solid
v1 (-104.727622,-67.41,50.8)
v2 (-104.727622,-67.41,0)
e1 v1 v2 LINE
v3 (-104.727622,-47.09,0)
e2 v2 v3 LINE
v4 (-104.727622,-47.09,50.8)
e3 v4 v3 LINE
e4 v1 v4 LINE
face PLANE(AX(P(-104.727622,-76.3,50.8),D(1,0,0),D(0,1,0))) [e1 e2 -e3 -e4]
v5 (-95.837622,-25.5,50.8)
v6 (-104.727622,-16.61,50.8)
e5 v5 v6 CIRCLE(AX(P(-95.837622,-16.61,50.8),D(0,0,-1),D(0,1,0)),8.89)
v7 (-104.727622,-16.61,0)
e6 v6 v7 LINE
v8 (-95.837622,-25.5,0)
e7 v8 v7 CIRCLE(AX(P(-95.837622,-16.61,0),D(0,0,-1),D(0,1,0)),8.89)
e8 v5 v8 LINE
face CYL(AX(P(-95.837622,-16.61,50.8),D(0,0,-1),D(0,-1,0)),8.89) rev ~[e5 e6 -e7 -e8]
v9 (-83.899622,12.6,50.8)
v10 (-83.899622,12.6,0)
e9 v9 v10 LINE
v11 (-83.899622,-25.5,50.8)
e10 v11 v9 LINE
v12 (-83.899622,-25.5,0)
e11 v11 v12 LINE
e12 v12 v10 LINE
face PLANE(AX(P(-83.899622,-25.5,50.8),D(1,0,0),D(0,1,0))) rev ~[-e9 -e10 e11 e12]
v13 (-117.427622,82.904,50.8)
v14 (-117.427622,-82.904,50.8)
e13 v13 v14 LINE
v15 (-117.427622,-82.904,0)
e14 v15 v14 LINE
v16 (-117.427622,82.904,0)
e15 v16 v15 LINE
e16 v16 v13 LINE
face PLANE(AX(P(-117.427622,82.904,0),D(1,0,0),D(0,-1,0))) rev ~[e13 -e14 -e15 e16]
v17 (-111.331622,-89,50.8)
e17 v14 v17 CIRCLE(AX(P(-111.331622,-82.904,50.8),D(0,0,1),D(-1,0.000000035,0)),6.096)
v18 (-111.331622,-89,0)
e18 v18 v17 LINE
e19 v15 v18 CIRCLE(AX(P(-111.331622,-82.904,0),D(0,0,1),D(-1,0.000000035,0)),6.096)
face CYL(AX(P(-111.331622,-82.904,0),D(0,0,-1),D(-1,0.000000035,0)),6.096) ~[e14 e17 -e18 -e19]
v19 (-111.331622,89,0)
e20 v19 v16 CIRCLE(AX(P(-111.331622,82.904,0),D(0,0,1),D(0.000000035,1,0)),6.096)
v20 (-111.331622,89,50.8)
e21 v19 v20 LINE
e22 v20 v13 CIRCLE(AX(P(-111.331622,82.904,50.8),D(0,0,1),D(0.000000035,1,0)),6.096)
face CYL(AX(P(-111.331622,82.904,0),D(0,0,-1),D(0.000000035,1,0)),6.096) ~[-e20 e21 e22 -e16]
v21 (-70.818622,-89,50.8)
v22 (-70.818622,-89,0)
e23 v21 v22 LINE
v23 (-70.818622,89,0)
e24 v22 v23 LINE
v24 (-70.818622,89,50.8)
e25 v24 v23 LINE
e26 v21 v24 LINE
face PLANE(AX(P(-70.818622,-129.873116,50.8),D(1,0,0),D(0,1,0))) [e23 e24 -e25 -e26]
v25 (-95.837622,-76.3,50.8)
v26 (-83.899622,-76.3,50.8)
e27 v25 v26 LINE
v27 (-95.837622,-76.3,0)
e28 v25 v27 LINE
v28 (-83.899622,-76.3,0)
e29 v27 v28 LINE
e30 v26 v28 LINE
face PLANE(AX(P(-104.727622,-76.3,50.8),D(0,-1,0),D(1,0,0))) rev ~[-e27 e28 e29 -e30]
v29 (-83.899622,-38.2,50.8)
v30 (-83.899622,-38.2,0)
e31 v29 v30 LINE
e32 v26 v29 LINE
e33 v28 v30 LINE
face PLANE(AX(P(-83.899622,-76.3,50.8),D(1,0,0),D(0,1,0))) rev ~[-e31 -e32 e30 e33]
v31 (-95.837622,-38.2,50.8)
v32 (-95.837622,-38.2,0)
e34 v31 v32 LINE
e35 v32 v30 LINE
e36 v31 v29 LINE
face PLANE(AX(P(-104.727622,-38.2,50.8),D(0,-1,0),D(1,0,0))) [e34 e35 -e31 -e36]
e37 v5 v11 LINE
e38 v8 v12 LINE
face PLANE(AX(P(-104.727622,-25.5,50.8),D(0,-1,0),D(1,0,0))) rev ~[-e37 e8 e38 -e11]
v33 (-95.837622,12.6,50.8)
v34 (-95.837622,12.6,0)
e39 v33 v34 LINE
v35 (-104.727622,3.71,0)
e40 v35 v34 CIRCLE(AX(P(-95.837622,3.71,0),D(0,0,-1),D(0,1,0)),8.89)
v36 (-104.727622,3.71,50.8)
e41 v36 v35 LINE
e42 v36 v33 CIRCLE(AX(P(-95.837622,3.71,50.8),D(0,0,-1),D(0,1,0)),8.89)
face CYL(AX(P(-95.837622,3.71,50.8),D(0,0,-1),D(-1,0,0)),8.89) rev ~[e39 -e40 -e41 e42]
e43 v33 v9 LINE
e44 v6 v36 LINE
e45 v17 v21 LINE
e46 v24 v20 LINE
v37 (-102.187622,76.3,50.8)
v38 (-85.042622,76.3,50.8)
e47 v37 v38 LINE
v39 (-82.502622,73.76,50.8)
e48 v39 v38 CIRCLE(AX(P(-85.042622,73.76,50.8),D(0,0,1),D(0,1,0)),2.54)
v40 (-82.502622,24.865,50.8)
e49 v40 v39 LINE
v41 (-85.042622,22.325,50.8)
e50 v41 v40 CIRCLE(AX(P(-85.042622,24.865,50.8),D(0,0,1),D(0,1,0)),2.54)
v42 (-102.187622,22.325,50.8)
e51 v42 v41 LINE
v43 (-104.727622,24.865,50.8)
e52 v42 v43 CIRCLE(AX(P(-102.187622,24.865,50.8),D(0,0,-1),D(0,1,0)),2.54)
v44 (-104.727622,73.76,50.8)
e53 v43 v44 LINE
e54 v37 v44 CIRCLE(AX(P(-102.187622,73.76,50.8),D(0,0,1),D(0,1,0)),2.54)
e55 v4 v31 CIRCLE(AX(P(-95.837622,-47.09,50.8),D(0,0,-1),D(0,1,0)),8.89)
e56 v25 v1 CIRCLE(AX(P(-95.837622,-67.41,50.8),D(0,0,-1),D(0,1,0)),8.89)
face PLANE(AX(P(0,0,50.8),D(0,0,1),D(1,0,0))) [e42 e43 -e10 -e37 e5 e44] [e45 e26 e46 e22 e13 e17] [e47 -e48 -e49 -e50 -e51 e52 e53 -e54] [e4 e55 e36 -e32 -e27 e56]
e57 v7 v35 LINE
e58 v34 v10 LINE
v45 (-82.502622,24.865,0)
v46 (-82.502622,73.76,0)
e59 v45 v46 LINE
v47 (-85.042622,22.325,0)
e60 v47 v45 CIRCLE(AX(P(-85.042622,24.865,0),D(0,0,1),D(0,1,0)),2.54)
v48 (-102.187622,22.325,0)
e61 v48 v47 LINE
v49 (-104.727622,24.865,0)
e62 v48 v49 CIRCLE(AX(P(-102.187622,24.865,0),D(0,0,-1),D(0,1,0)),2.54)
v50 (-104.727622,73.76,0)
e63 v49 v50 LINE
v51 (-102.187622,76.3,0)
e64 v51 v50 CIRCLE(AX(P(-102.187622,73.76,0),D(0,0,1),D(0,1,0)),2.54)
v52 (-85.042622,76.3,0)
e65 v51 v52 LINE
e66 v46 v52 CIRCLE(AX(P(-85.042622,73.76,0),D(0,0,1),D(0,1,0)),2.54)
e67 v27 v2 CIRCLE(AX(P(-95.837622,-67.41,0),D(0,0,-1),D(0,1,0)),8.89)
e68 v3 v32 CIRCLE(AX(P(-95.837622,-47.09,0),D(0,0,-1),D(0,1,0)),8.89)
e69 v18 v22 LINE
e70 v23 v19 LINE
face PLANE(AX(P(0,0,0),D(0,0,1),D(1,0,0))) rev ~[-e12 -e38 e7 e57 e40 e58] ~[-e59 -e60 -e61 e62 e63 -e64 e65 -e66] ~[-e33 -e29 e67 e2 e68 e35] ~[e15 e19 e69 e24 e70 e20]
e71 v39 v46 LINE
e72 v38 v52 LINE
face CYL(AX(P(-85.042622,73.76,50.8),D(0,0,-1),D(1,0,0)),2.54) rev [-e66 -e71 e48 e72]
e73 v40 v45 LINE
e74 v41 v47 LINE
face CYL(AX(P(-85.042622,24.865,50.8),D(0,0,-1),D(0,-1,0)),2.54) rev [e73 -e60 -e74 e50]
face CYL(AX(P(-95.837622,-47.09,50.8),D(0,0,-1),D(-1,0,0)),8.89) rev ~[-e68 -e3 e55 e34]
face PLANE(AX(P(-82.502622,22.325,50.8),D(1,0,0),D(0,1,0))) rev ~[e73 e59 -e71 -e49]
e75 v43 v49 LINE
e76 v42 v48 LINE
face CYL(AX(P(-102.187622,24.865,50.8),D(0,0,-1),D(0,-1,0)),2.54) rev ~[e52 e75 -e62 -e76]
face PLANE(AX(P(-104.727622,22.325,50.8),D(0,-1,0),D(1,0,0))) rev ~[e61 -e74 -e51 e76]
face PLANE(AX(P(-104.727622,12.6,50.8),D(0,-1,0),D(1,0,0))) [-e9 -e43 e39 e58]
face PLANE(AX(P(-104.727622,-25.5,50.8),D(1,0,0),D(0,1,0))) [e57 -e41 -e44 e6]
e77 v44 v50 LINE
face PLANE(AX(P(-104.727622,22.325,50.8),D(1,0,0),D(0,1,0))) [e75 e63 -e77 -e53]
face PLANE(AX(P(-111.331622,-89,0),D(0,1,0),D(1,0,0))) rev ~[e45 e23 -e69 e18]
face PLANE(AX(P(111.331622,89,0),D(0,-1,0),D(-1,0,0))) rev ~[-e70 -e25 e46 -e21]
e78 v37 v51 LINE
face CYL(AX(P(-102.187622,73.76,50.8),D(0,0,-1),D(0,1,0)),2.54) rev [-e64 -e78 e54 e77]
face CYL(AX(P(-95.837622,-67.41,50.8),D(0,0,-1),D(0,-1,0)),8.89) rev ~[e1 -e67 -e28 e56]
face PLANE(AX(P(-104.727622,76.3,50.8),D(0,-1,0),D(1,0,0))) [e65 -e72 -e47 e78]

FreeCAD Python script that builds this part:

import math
import FreeCAD as App
import Part
import Sketcher
from FreeCAD import Vector
Q = App.Units.Quantity


def edges_at(feature, points):
    """Names of the edges that pass closest to the given points."""
    edges = feature.Shape.Edges
    near = lambda p: min(range(len(edges)), key=lambda i: edges[i].distToShape(Part.Vertex(*p))[0])
    return sorted({f"Edge{near(p) + 1}" for p in points})


def add_polygon(sketch, points):
    """Adds a closed chain of lines whose ends are joined by coincident constraints."""
    first, n = sketch.GeometryCount, len(points)
    for a, b in zip(points, points[1:] + points[:1]):
        sketch.addGeometry(Part.LineSegment(App.Vector(*a, 0), App.Vector(*b, 0)), False)
    for i in range(n):
        sketch.addConstraint(Sketcher.Constraint("Coincident", first + i, 2, first + (i + 1) % n, 1))

doc = App.newDocument("Part")
body = doc.addObject("PartDesign::Body", "Body")

sketch1 = body.newObject("Sketcher::SketchObject", "Sketch")
sketch1.AttachmentSupport = (doc.getObject("XY_Plane"), [""])
sketch1.MapMode = "FlatFace"
sketch1.addGeometry([
    Part.ArcOfCircle(Part.Circle(Vector(-111, 83, 0), Vector(0, 0, 1), 6), math.radians(90), math.radians(180)),
    Part.LineSegment(Vector(-117, 83, 0), Vector(-117, -83, 0)),
    Part.ArcOfCircle(Part.Circle(Vector(-111, -83, 0), Vector(0, 0, 1), 6), math.radians(180), math.radians(270)),
    Part.LineSegment(Vector(-111, -89, 0), Vector(111, -89, 0)),
    Part.ArcOfCircle(Part.Circle(Vector(111, -83, 0), Vector(0, 0, 1), 6), math.radians(-90), math.radians(0)),
    Part.LineSegment(Vector(117, -83, 0), Vector(117, 83, 0)),
    Part.ArcOfCircle(Part.Circle(Vector(111, 83, 0), Vector(0, 0, 1), 6), math.radians(0), math.radians(90)),
    Part.LineSegment(Vector(111, 89, 0), Vector(-111, 89, 0)),
    Part.LineSegment(Vector(-55, -15, 0), Vector(-61, -11, 0)),
    Part.ArcOfCircle(Part.Circle(Vector(14, -1, 0), Vector(0, 0, 1), 76), math.radians(172.24), math.radians(187.74)),
    Part.LineSegment(Vector(-61, 10, 0), Vector(-55, 14, 0)),
    Part.ArcOfCircle(Part.Circle(Vector(25, -1, 0), Vector(0, 0, 1), 81), math.radians(131), math.radians(169)),
    Part.LineSegment(Vector(-28, 61, 0), Vector(-27, 68, 0)),
    Part.ArcOfCircle(Part.Circle(Vector(20, 6, 0), Vector(0, 0, 1), 78), math.radians(112.48), math.radians(127.67)),
    Part.LineSegment(Vector(-9, 78, 0), Vector(-3, 75, 0)),
    Part.ArcOfCircle(Part.Circle(Vector(24, 0, 0), Vector(0, 0, 1), 80), math.radians(70), math.radians(110)),
    Part.LineSegment(Vector(51, 75, 0), Vector(58, 78, 0)),
    Part.ArcOfCircle(Part.Circle(Vector(26, 3, 0), Vector(0, 0, 1), 81), math.radians(52.77), math.radians(67.38)),
    Part.LineSegment(Vector(76, 68, 0), Vector(77, 61, 0)),
    Part.ArcOfCircle(Part.Circle(Vector(38, 13, 0), Vector(0, 0, 1), 62), math.radians(43.39), math.radians(51.37)),
    Part.ArcOfCircle(Part.Circle(Vector(89, 38, 0), Vector(0, 0, 1), 18), math.radians(-50), math.radians(110)),
    Part.ArcOfCircle(Part.Circle(Vector(40, 6, 0), Vector(0, 0, 1), 63), math.radians(8.5), math.radians(16.49)),
    Part.LineSegment(Vector(102, 16, 0), Vector(108, 11, 0)),
    Part.ArcOfCircle(Part.Circle(Vector(25, 0, 0), Vector(0, 0, 1), 84), math.radians(-6.88), math.radians(7.19)),
    Part.LineSegment(Vector(108, -10, 0), Vector(102, -14, 0)),
    Part.ArcOfCircle(Part.Circle(Vector(22, 1, 0), Vector(0, 0, 1), 81), math.radians(-49), math.radians(-11)),
    Part.LineSegment(Vector(75, -60, 0), Vector(75, -67, 0)),
    Part.ArcOfCircle(Part.Circle(Vector(26, -8, 0), Vector(0, 0, 1), 77), math.radians(-66.36), math.radians(-50.86)),
    Part.LineSegment(Vector(57, -78, 0), Vector(50, -75, 0)),
    Part.ArcOfCircle(Part.Circle(Vector(23, 0, 0), Vector(0, 0, 1), 80), math.radians(-110), math.radians(-70)),
    Part.LineSegment(Vector(-4, -76, 0), Vector(-10, -78, 0)),
    Part.ArcOfCircle(Part.Circle(Vector(17, -10, 0), Vector(0, 0, 1), 73), math.radians(-127.91), math.radians(-111.82)),
    Part.LineSegment(Vector(-28, -68, 0), Vector(-29, -61, 0)),
    Part.ArcOfCircle(Part.Circle(Vector(13, -9, 0), Vector(0, 0, 1), 66), math.radians(-136.23), math.radians(-128.83)),
    Part.ArcOfCircle(Part.Circle(Vector(-44, -39, 0), Vector(0, 0, 1), 18), math.radians(120), math.radians(300)),
    Part.ArcOfCircle(Part.Circle(Vector(4, -7, 0), Vector(0, 0, 1), 59), math.radians(-171.85), math.radians(-163.34)),
], False)
sketch1.addConstraint([
    Sketcher.Constraint("Tangent", 0, 2, 1, 1),
    Sketcher.Constraint("Tangent", 1, 2, 2, 1),
    Sketcher.Constraint("Tangent", 2, 2, 3, 1),
    Sketcher.Constraint("Tangent", 3, 2, 4, 1),
    Sketcher.Constraint("Tangent", 4, 2, 5, 1),
    Sketcher.Constraint("Tangent", 5, 2, 6, 1),
    Sketcher.Constraint("Tangent", 6, 2, 7, 1),
    Sketcher.Constraint("Tangent", 7, 2, 0, 1),
    Sketcher.Constraint("Coincident", 8, 2, 9, 2),
    Sketcher.Constraint("Coincident", 9, 1, 10, 1),
    Sketcher.Constraint("Coincident", 10, 2, 11, 2),
    Sketcher.Constraint("Coincident", 11, 1, 12, 1),
    Sketcher.Constraint("Coincident", 12, 2, 13, 2),
    Sketcher.Constraint("Coincident", 13, 1, 14, 1),
    Sketcher.Constraint("Coincident", 14, 2, 15, 2),
    Sketcher.Constraint("Coincident", 15, 1, 16, 1),
    Sketcher.Constraint("Coincident", 16, 2, 17, 2),
    Sketcher.Constraint("Coincident", 17, 1, 18, 1),
    Sketcher.Constraint("Coincident", 18, 2, 19, 2),
    Sketcher.Constraint("Coincident", 19, 1, 20, 2),
    Sketcher.Constraint("Coincident", 20, 1, 21, 2),
    Sketcher.Constraint("Coincident", 21, 1, 22, 1),
    Sketcher.Constraint("Coincident", 22, 2, 23, 2),
    Sketcher.Constraint("Coincident", 23, 1, 24, 1),
    Sketcher.Constraint("Coincident", 24, 2, 25, 2),
    Sketcher.Constraint("Coincident", 25, 1, 26, 1),
    Sketcher.Constraint("Coincident", 26, 2, 27, 2),
    Sketcher.Constraint("Coincident", 27, 1, 28, 1),
    Sketcher.Constraint("Coincident", 28, 2, 29, 2),
    Sketcher.Constraint("Coincident", 29, 1, 30, 1),
    Sketcher.Constraint("Coincident", 30, 2, 31, 2),
    Sketcher.Constraint("Coincident", 31, 1, 32, 1),
    Sketcher.Constraint("Coincident", 32, 2, 33, 2),
    Sketcher.Constraint("Coincident", 33, 1, 34, 2),
    Sketcher.Constraint("Coincident", 34, 1, 35, 2),
    Sketcher.Constraint("Coincident", 35, 1, 8, 1),
    Sketcher.Constraint("Vertical", 1),
    Sketcher.Constraint("Horizontal", 3),
    Sketcher.Constraint("Vertical", 5),
    Sketcher.Constraint("Horizontal", 7),
    Sketcher.Constraint("Equal", 0, 2),
    Sketcher.Constraint("Equal", 2, 4),
    Sketcher.Constraint("Equal", 4, 6),
    Sketcher.Constraint("Equal", 20, 34),
    Sketcher.Constraint("Symmetric", 0, 3, 4, 3, -1, 1),
    Sketcher.Constraint("Radius", 0, Q("0.24 in")),
    Sketcher.Constraint("Radius", 17, Q("81.215498 mm")),
    Sketcher.Constraint("Radius", 19, Q("61.765711 mm")),
    Sketcher.Constraint("Radius", 23, Q("83.962758 mm")),
    Sketcher.Constraint("Radius", 25, Q("81.366119 mm")),
    Sketcher.Constraint("Radius", 33, Q("66.497739 mm")),
    Sketcher.Constraint("DistanceY", 1, 2, 1, 1, Q("165.808 mm")),
    Sketcher.Constraint("Radius", 9, Q("75.970273 mm")),
    Sketcher.Constraint("Radius", 11, Q("81.270907 mm")),
    Sketcher.Constraint("Radius", 13, Q("78.360414 mm")),
    Sketcher.Constraint("Radius", 15, Q("80.267375 mm")),
    Sketcher.Constraint("Radius", 20, Q("17.861763 mm")),
    Sketcher.Constraint("Radius", 21, Q("63.474578 mm")),
    Sketcher.Constraint("Radius", 27, Q("76.686686 mm")),
    Sketcher.Constraint("Radius", 29, Q("80.069398 mm")),
    Sketcher.Constraint("Radius", 31, Q("73.445146 mm")),
    Sketcher.Constraint("Radius", 35, Q("59.498827 mm")),
    Sketcher.Constraint("DistanceX", 30, 2, 28, 2, Q("2.3835001 in")),
    Sketcher.Constraint("DistanceY", 30, 2, 33, 1, Q("0.9129001 in")),
    Sketcher.Constraint("DistanceY", -1, 1, 20, 3, Q("38.157499 mm")),
    Sketcher.Constraint("DistanceY", 29, 1, -1, 1, Q("75.502299 mm")),
    Sketcher.Constraint("DistanceY", 11, 3, 9, 3, Q("0.2703 mm")),
    Sketcher.Constraint("DistanceX", 13, 3, 17, 3, Q("5.902199 mm")),
    Sketcher.Constraint("DistanceY", 29, 3, 17, 3, Q("3.271501 mm")),
    Sketcher.Constraint("DistanceY", 35, 3, 9, 3, Q("6.331898 mm")),
    Sketcher.Constraint("DistanceX", 9, 1, 35, 3, Q("64.589498 mm")),
    Sketcher.Constraint("DistanceX", 27, 1, 25, 1, Q("18.576599 mm")),
    Sketcher.Constraint("DistanceX", 29, 1, 27, 1, Q("60.4733 mm")),
    Sketcher.Constraint("Distance", 8, Q("7.28011 mm")),
    Sketcher.Constraint("Distance", 16, Q("7.221338 mm")),
    Sketcher.Constraint("Distance", 26, Q("7.128511 mm")),
    Sketcher.Constraint("DistanceX", 3, 1, 3, 2, Q("222.663244 mm")),
    Sketcher.Constraint("DistanceY", 9, 3, -1, 1, Q("0.574921 mm")),
    Sketcher.Constraint("DistanceX", -1, 1, 11, 3, Q("24.64204 mm")),
    Sketcher.Constraint("DistanceY", -1, 1, 13, 3, Q("5.715589 mm")),
    Sketcher.Constraint("DistanceX", -1, 1, 15, 3, Q("24.100318 mm")),
    Sketcher.Constraint("DistanceX", -1, 1, 19, 3, Q("37.95883 mm")),
    Sketcher.Constraint("DistanceY", -1, 1, 19, 3, Q("12.50406 mm")),
    Sketcher.Constraint("DistanceX", -1, 1, 20, 3, Q("88.971581 mm")),
    Sketcher.Constraint("DistanceX", -1, 1, 21, 3, Q("39.542609 mm")),
    Sketcher.Constraint("DistanceY", 27, 3, -1, 1, Q("7.864029 mm")),
    Sketcher.Constraint("DistanceX", -1, 1, 29, 3, Q("23.230689 mm")),
    Sketcher.Constraint("DistanceY", 29, 3, -1, 1, Q("0.055579 mm")),
    Sketcher.Constraint("DistanceX", -1, 1, 31, 3, Q("17.014051 mm")),
    Sketcher.Constraint("DistanceY", -1, 1, 9, 1, Q("9.68241 mm")),
    Sketcher.Constraint("DistanceX", 13, 1, -1, 1, Q("9.485241 mm")),
    Sketcher.Constraint("DistanceX", 14, 2, -1, 1, Q("2.738388 mm")),
    Sketcher.Constraint("DistanceX", -1, 1, 15, 1, Q("50.935831 mm")),
    Sketcher.Constraint("DistanceY", -1, 1, 15, 1, Q("75.42944 mm")),
    Sketcher.Constraint("DistanceX", -1, 1, 16, 2, Q("57.610091 mm")),
    Sketcher.Constraint("DistanceY", -1, 1, 17, 1, Q("67.880422 mm")),
    Sketcher.Constraint("DistanceY", -1, 1, 20, 1, Q("24.436881 mm")),
    Sketcher.Constraint("DistanceX", -1, 1, 21, 1, Q("102.319921 mm")),
    Sketcher.Constraint("DistanceX", -1, 1, 22, 2, Q("108.049072 mm")),
    Sketcher.Constraint("DistanceX", -1, 1, 23, 1, Q("108.105719 mm")),
    Sketcher.Constraint("DistanceY", 23, 1, -1, 1, Q("9.698672 mm")),
    Sketcher.Constraint("DistanceX", -1, 1, 26, 2, Q("74.544008 mm")),
    Sketcher.Constraint("DistanceY", 28, 2, -1, 1, Q("75.428069 mm")),
    Sketcher.Constraint("DistanceY", 30, 2, -1, 1, Q("78.054152 mm")),
    Sketcher.Constraint("DistanceY", 31, 1, -1, 1, Q("67.817248 mm")),
    Sketcher.Constraint("DistanceY", 32, 2, -1, 1, Q("60.66791 mm")),
    Sketcher.Constraint("DistanceX", 34, 1, -1, 1, Q("53.325141 mm")),
    Sketcher.Constraint("DistanceY", 35, 1, -1, 1, Q("15.337682 mm")),
    Sketcher.Constraint("DistanceX", 9, 3, 4, 3, Q("96.970989 mm")),
    Sketcher.Constraint("DistanceY", 15, 3, 23, 3, Q("0.57709 mm")),
    Sketcher.Constraint("DistanceY", 15, 3, 25, 3, Q("1.635951 mm")),
    Sketcher.Constraint("DistanceX", 25, 3, 17, 3, Q("3.96619 mm")),
    Sketcher.Constraint("DistanceY", 31, 3, 33, 3, Q("1.005631 mm")),
    Sketcher.Constraint("DistanceX", 34, 3, 33, 3, Q("56.984429 mm")),
    Sketcher.Constraint("DistanceX", 9, 1, 10, 2, Q("5.701441 mm")),
    Sketcher.Constraint("DistanceX", 10, 2, 11, 1, Q("26.820852 mm")),
    Sketcher.Constraint("DistanceX", 11, 1, 12, 2, Q("0.984069 mm")),
    Sketcher.Constraint("DistanceX", 17, 1, 18, 2, Q("1.003921 mm")),
    Sketcher.Constraint("DistanceX", 24, 2, 23, 1, Q("5.757262 mm")),
])
pad1 = body.newObject("PartDesign::Pad", "Pad")
pad1.Profile = sketch1
pad1.Length = Q("2 in")

sketch2 = body.newObject("Sketcher::SketchObject", "Sketch001")
sketch2.AttachmentSupport = (doc.getObject("XY_Plane"), [""])
sketch2.MapMode = "FlatFace"
sketch2.AttachmentOffset = App.Placement(Vector(0, 0, 2 * 25.4), App.Rotation())
add_polygon(sketch2, [(-105, -38), (-105, -76), (-84, -76), (-84, -38)])
add_polygon(sketch2, [(-105, 13), (-105, -26), (-84, -26), (-84, 13)])
sketch2.addConstraint([
    Sketcher.Constraint("Vertical", 0),
    Sketcher.Constraint("Horizontal", 1),
    Sketcher.Constraint("Vertical", 2),
    Sketcher.Constraint("Horizontal", 3),
    Sketcher.Constraint("Vertical", 4),
    Sketcher.Constraint("Horizontal", 5),
    Sketcher.Constraint("Vertical", 6),
    Sketcher.Constraint("Horizontal", 7),
    Sketcher.Constraint("Vertical", 3, 2, 4, 2),
    Sketcher.Constraint("Vertical", 2, 2, 5, 2),
    Sketcher.Constraint("Equal", 2, 4),
    Sketcher.Constraint("DistanceY", 0, 2, 0, 1, Q("1.5 in")),
    Sketcher.Constraint("DistanceY", 0, 2, 4, 2, Q("2 in")),
    Sketcher.Constraint("DistanceX", 1, 1, 1, 2, Q("0.82 in")),
    Sketcher.Constraint("DistanceY", 0, 2, -1, 1, Q("76.3 mm")),
    Sketcher.Constraint("DistanceX", 0, 2, -1, 1, Q("104.727622 mm")),
])
pocket1 = body.newObject("PartDesign::Pocket", "Pocket")
pocket1.Profile = sketch2
pocket1.Length = Q("2 in")

sketch3 = body.newObject("Sketcher::SketchObject", "Sketch002")
sketch3.AttachmentSupport = (doc.getObject("XY_Plane"), [""])
sketch3.MapMode = "FlatFace"
sketch3.AttachmentOffset = App.Placement(Vector(0, 0, 2 * 25.4), App.Rotation())
add_polygon(sketch3, [(-105, 76), (-105, 22), (-83, 22), (-83, 76)])
sketch3.addConstraint([
    Sketcher.Constraint("Vertical", 0),
    Sketcher.Constraint("Horizontal", 1),
    Sketcher.Constraint("Vertical", 2),
    Sketcher.Constraint("Horizontal", 3),
    Sketcher.Constraint("DistanceX", 1, 1, 1, 2, Q("0.875 in")),
    Sketcher.Constraint("DistanceY", 0, 2, 0, 1, Q("2.125 in")),
    Sketcher.Constraint("DistanceY", -1, 1, 0, 2, Q("22.325 mm")),
    Sketcher.Constraint("DistanceX", 0, 2, -1, 1, Q("104.727622 mm")),
])
pocket2 = body.newObject("PartDesign::Pocket", "Pocket001")
pocket2.Profile = sketch3
pocket2.Length = Q("2 in")
doc.recompute()

fillet = body.newObject("PartDesign::Fillet", "Fillet")
fillet.Base = (pocket2, edges_at(pocket2, [
    (-104.728, 12.6, 25.4),
    (-104.728, -38.2, 25.4),
    (-104.728, -25.5, 25.4),
    (-104.728, -76.3, 25.4),
]))
fillet.Radius = Q("0.35 in")
doc.recompute()

fillet2 = body.newObject("PartDesign::Fillet", "Fillet001")
fillet2.Base = (fillet, edges_at(fillet, [
    (-82.503, 76.3, 25.4),
    (-104.728, 76.3, 25.4),
    (-82.503, 22.325, 25.4),
    (-104.728, 22.325, 25.4),
]))
fillet2.Radius = Q("0.1 in")

sketch4 = body.newObject("Sketcher::SketchObject", "Sketch003")
sketch4.AttachmentSupport = (doc.getObject("XY_Plane"), [""])
sketch4.MapMode = "FlatFace"
sketch4.AttachmentOffset = App.Placement(Vector(0, 0, 2 * 25.4), App.Rotation())
add_polygon(sketch4, [(-71, 89), (-71, -130), (206, -130), (206, 89)])
sketch4.addConstraint([
    Sketcher.Constraint("Vertical", 0),
    Sketcher.Constraint("Horizontal", 1),
    Sketcher.Constraint("Vertical", 2),
    Sketcher.Constraint("Horizontal", 3),
    Sketcher.Constraint("DistanceY", -1, 1, 2, 2, Q("89 mm")),
    Sketcher.Constraint("DistanceX", 1, 1, 1, 2, Q("276.807827 mm")),
    Sketcher.Constraint("DistanceY", 0, 2, 0, 1, Q("218.873116 mm")),
    Sketcher.Constraint("DistanceX", 0, 2, -1, 1, Q("70.818622 mm")),
])
pocket3 = body.newObject("PartDesign::Pocket", "Pocket002")
pocket3.Profile = sketch4
pocket3.Length = Q("2 in")

doc.recompute()
